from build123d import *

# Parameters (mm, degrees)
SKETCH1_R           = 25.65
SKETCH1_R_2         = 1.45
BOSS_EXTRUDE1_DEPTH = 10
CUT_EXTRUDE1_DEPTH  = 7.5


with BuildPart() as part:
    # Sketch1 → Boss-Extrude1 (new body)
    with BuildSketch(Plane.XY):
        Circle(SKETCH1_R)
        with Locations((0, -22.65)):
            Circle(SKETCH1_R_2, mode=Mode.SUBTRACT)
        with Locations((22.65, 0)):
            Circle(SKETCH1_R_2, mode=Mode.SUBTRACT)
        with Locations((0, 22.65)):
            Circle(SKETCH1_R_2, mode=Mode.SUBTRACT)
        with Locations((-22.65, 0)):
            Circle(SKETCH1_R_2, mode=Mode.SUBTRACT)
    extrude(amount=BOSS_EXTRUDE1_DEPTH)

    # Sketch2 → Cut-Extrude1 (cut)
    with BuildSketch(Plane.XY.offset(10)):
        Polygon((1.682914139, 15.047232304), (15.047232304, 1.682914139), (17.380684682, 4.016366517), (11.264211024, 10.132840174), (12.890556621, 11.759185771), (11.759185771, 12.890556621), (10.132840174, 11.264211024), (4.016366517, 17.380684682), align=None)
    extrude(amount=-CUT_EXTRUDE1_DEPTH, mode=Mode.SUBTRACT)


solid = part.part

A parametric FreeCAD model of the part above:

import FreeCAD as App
import Part
import Sketcher
Q = App.Units.Quantity

doc = App.newDocument("Part")
body = doc.addObject("PartDesign::Body", "Body")

# Sketch on XY plane
sketch1 = body.newObject("Sketcher::SketchObject", "Sketch")
sketch1.AttachmentSupport = (doc.getObject("XY_Plane"), [""])
sketch1.MapMode = "FlatFace"
sketch1.addGeometry([
    Part.Circle(App.Vector(0, 0, 0), App.Vector(0, 0, 1), 25.6),  # 0
    Part.Circle(App.Vector(0, -22.6, 0), App.Vector(0, 0, 1), 1.4),  # 1
    Part.Circle(App.Vector(-22.6, 0, 0), App.Vector(0, 0, 1), 1.4),  # 2
    Part.Circle(App.Vector(22.6, 0, 0), App.Vector(0, 0, 1), 1.4),  # 3
    Part.Circle(App.Vector(0, 22.6, 0), App.Vector(0, 0, 1), 1.4),  # 4
], False)
sketch1.addConstraint([
    Sketcher.Constraint("Coincident", 0, 3, -1, 1),
    Sketcher.Constraint("Equal", 1, 2),
    Sketcher.Constraint("Equal", 2, 3),
    Sketcher.Constraint("Equal", 3, 4),
    Sketcher.Constraint("Symmetric", 2, 3, 3, 3, -1, 1),
    Sketcher.Constraint("Symmetric", 1, 3, 4, 3, -1, 1),
    Sketcher.Constraint("PointOnObject", 1, 3, -2),
    Sketcher.Constraint("PointOnObject", 2, 3, -1),
    Sketcher.Constraint("Diameter", 0, Q("51.3 mm")),
    Sketcher.Constraint("Diameter", 1, Q("2.9 mm")),
    Sketcher.Constraint("DistanceX", 2, 3, 3, 3, Q("45.3 mm")),
    Sketcher.Constraint("DistanceY", 1, 3, 4, 3, Q("45.3 mm")),
])
pad1 = body.newObject("PartDesign::Pad", "Pad")
pad1.Profile = sketch1
pad1.Length = 10

# Sketch on XY plane
sketch2 = body.newObject("Sketcher::SketchObject", "Sketch001")
sketch2.AttachmentSupport = (doc.getObject("XY_Plane"), [""])
sketch2.MapMode = "FlatFace"
sketch2.AttachmentOffset = App.Placement(App.Vector(0, 0, 10), App.Rotation())
sketch2.addGeometry([
    Part.LineSegment(App.Vector(1.7, 15, 0), App.Vector(15, 1.7, 0)),  # 0
    Part.LineSegment(App.Vector(15, 1.7, 0), App.Vector(17.4, 4, 0)),  # 1
    Part.LineSegment(App.Vector(17.4, 4, 0), App.Vector(11.3, 10.1, 0)),  # 2
    Part.LineSegment(App.Vector(11.3, 10.1, 0), App.Vector(12.9, 11.8, 0)),  # 3
    Part.LineSegment(App.Vector(12.9, 11.8, 0), App.Vector(11.8, 12.9, 0)),  # 4
    Part.LineSegment(App.Vector(11.8, 12.9, 0), App.Vector(10.1, 11.3, 0)),  # 5
    Part.LineSegment(App.Vector(10.1, 11.3, 0), App.Vector(4, 17.4, 0)),  # 6
    Part.LineSegment(App.Vector(4, 17.4, 0), App.Vector(1.7, 15, 0)),  # 7
], False)
sketch2.addConstraint([
    Sketcher.Constraint("Coincident", 0, 2, 1, 1),
    Sketcher.Constraint("Coincident", 1, 2, 2, 1),
    Sketcher.Constraint("Coincident", 2, 2, 3, 1),
    Sketcher.Constraint("Coincident", 3, 2, 4, 1),
    Sketcher.Constraint("Coincident", 4, 2, 5, 1),
    Sketcher.Constraint("Coincident", 5, 2, 6, 1),
    Sketcher.Constraint("Coincident", 6, 2, 7, 1),
    Sketcher.Constraint("Coincident", 7, 2, 0, 1),
    Sketcher.Constraint("Perpendicular", 0, 1),
    Sketcher.Constraint("Perpendicular", 1, 2),
    Sketcher.Constraint("Perpendicular", 2, 3),
    Sketcher.Constraint("Perpendicular", 3, 4),
    Sketcher.Constraint("Perpendicular", 4, 5),
    Sketcher.Constraint("Perpendicular", 5, 6),
    Sketcher.Constraint("Perpendicular", 6, 7),
    Sketcher.Constraint("Equal", 3, 5),
    Sketcher.Constraint("Equal", 2, 6),
    Sketcher.Constraint("Angle", 0, Q("-45 deg")),
    Sketcher.Constraint("Distance", 0, Q("18.9 mm")),
    Sketcher.Constraint("Distance", 1, Q("3.3 mm")),
    Sketcher.Constraint("Distance", 3, Q("2.3 mm")),
    Sketcher.Constraint("Distance", 4, Q("1.6 mm")),
    Sketcher.Constraint("DistanceX", -1, 1, 2, 2, Q("11.264211 mm")),
    Sketcher.Constraint("DistanceY", -1, 1, 2, 2, Q("10.13284 mm")),
])
pocket1 = body.newObject("PartDesign::Pocket", "Pocket")
pocket1.Profile = sketch2
pocket1.Length = 7.5

doc.recompute()
